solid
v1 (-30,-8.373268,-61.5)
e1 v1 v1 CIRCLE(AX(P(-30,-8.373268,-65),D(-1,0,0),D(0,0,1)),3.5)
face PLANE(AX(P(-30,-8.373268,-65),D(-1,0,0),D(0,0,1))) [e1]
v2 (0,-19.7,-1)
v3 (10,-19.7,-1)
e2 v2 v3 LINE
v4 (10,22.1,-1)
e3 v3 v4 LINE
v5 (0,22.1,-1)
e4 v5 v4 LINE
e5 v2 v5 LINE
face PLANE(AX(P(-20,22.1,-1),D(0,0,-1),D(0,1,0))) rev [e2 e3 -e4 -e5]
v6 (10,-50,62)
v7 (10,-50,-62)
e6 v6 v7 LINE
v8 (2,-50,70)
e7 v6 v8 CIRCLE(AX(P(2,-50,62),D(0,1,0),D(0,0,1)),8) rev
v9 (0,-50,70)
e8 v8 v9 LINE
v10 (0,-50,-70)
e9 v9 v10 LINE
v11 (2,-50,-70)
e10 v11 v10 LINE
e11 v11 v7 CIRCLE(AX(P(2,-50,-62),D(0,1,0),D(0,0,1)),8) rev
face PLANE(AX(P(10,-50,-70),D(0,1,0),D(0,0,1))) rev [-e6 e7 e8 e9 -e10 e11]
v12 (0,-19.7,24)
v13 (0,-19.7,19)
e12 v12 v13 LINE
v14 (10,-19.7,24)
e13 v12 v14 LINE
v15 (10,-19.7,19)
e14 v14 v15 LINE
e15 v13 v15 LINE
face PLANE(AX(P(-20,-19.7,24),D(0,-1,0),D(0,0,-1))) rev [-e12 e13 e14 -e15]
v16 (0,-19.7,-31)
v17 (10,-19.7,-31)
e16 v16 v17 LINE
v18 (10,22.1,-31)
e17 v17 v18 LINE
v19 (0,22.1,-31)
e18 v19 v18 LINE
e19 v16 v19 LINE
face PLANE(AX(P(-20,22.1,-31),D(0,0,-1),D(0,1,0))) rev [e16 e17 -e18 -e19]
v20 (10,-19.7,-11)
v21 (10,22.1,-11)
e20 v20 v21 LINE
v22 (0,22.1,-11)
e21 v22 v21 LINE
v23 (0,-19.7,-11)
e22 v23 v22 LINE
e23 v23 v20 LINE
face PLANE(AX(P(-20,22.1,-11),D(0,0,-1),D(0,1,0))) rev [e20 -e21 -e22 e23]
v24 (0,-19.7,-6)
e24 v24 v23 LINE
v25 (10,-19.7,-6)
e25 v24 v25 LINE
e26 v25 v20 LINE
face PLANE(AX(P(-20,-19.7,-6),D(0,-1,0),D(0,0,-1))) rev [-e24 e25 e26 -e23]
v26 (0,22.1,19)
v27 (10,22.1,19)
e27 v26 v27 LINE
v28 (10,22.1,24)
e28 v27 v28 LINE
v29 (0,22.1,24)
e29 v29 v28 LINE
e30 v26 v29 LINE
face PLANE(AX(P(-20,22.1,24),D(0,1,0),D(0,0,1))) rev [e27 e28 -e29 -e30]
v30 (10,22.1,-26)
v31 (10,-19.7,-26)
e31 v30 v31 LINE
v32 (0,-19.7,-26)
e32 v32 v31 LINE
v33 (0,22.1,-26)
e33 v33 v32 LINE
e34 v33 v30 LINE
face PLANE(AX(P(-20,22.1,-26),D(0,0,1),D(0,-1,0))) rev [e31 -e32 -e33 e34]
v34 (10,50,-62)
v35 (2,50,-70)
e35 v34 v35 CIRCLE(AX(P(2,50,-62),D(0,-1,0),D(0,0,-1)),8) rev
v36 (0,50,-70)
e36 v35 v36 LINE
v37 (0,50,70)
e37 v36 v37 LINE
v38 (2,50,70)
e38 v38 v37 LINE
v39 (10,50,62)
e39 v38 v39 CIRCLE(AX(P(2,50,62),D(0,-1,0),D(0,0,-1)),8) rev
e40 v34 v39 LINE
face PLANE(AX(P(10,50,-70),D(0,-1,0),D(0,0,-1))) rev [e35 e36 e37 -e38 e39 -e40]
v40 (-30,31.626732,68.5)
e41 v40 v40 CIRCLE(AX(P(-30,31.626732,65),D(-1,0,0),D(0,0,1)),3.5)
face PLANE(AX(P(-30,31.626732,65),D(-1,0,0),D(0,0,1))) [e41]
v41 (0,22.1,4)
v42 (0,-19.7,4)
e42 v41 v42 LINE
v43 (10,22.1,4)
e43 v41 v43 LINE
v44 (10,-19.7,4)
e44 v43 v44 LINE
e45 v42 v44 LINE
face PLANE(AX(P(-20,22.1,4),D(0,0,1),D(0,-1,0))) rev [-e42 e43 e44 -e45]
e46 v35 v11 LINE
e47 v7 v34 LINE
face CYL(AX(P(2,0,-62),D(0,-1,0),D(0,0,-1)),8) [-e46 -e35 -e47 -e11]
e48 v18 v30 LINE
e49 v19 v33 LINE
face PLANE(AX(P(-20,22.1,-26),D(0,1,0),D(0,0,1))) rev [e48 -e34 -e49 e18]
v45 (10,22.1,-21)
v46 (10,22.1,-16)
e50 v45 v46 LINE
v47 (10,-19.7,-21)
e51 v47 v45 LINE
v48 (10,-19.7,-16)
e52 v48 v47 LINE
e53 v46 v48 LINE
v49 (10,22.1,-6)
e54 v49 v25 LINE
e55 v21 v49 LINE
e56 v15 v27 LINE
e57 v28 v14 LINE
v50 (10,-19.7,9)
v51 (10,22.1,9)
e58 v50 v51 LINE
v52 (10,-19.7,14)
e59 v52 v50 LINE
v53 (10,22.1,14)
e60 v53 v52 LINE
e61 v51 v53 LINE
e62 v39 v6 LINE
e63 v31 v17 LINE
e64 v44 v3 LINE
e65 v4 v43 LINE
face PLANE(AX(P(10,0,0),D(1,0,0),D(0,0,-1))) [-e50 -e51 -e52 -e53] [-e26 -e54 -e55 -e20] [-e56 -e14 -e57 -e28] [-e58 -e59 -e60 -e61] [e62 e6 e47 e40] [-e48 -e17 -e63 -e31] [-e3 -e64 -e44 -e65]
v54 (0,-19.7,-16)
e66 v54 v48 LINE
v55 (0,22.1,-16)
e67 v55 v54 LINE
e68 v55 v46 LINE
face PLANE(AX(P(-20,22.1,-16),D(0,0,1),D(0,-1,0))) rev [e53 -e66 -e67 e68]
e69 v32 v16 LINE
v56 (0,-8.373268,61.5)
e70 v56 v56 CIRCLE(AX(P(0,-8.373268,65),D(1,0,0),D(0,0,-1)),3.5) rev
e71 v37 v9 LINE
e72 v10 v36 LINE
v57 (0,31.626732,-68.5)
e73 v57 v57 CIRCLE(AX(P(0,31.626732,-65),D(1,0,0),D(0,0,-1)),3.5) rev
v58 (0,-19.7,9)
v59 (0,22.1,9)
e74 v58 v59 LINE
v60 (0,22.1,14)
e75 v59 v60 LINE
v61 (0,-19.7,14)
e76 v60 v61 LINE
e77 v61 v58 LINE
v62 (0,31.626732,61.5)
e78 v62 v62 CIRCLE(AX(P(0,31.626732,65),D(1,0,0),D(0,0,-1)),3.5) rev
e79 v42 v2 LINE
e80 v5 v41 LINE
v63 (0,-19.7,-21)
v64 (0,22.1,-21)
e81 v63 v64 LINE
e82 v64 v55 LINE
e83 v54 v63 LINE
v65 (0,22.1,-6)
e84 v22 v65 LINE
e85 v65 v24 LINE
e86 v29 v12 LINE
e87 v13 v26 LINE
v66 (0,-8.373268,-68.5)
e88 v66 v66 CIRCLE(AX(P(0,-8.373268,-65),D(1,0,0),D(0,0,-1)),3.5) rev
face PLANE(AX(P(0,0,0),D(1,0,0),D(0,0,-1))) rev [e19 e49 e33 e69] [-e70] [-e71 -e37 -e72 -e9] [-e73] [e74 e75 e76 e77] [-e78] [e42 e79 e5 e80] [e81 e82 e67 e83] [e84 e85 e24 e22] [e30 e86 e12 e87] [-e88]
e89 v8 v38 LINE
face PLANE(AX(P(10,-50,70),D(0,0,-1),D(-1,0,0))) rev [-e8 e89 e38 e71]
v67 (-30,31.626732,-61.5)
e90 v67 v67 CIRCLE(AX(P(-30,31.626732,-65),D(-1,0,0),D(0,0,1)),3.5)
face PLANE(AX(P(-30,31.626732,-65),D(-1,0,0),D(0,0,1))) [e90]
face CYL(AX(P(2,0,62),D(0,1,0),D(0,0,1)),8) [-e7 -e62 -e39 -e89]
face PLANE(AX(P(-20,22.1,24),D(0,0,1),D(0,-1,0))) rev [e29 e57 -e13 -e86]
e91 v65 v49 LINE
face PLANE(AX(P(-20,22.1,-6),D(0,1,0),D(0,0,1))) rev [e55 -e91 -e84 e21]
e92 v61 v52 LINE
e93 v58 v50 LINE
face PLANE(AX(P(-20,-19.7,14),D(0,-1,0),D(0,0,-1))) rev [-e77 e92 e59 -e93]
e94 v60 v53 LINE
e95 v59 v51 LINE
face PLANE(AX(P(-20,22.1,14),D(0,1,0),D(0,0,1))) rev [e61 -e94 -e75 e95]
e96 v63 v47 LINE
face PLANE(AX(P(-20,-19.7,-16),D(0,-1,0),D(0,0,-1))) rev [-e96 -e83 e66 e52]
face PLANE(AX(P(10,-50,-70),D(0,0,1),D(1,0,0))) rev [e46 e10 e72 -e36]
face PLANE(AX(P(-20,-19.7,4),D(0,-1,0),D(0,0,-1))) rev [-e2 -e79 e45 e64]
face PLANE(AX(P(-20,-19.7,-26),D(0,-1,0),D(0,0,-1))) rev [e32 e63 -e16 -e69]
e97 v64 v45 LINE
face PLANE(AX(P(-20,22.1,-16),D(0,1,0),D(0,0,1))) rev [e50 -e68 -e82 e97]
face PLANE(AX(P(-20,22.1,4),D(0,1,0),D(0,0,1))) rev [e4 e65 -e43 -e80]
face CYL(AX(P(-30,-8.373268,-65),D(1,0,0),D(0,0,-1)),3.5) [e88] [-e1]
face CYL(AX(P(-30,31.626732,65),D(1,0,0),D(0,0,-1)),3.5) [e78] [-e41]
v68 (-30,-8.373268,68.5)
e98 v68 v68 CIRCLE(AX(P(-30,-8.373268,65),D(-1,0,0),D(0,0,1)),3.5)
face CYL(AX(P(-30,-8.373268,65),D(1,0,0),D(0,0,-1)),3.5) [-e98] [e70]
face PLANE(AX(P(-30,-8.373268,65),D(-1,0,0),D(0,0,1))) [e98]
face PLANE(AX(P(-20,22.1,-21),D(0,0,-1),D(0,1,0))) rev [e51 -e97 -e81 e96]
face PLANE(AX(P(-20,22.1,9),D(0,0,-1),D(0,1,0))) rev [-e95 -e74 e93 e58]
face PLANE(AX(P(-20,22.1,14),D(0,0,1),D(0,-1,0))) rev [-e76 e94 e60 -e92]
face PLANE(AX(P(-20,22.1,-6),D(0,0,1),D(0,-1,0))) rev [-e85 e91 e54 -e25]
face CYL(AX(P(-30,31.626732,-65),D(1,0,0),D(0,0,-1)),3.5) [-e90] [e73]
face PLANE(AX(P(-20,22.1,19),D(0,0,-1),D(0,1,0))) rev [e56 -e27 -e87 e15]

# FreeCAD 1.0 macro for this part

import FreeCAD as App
import Part
import Sketcher
from FreeCAD import Vector


def edges_at(feature, points):
    """Names of the edges that pass closest to the given points."""
    edges = feature.Shape.Edges
    near = lambda p: min(range(len(edges)), key=lambda i: edges[i].distToShape(Part.Vertex(*p))[0])
    return sorted({f"Edge{near(p) + 1}" for p in points})

doc = App.newDocument("Part")
body = doc.addObject("PartDesign::Body", "Body")

# Sketch on YZ plane
sketch1 = doc.addObject("Sketcher::SketchObject", "Sketch")
body.addObject(sketch1)
sketch1.AttachmentSupport = (doc.YZ_Plane, [""])
sketch1.MapMode = "FlatFace"
sketch1.addGeometry([
    Part.LineSegment(Vector(50, 70, 0), Vector(-50, 70, 0)),
    Part.LineSegment(Vector(-50, 70, 0), Vector(-50, -70, 0)),
    Part.LineSegment(Vector(-50, -70, 0), Vector(50, -70, 0)),
    Part.LineSegment(Vector(50, -70, 0), Vector(50, 70, 0)),
], False)
sketch1.addConstraint([
    Sketcher.Constraint("Coincident", 0, 2, 1, 1),
    Sketcher.Constraint("Coincident", 1, 2, 2, 1),
    Sketcher.Constraint("Coincident", 2, 2, 3, 1),
    Sketcher.Constraint("Coincident", 3, 2, 0, 1),
    Sketcher.Constraint("Horizontal", 0),
    Sketcher.Constraint("Vertical", 1),
    Sketcher.Constraint("Horizontal", 2),
    Sketcher.Constraint("Vertical", 3),
    Sketcher.Constraint("Symmetric", 0, 2, 2, 2, -1, 1),
    Sketcher.Constraint("DistanceX", 0, 2, 0, 1, 100.0),
    Sketcher.Constraint("DistanceY", 1, 2, 1, 1, 140.0),
])
pad1 = doc.addObject("PartDesign::Pad", "Pad")
body.addObject(pad1)
pad1.Profile = sketch1
pad1.Length = 10

# Sketch on YZ plane
sketch2 = doc.addObject("Sketcher::SketchObject", "Sketch001")
body.addObject(sketch2)
sketch2.AttachmentSupport = (doc.YZ_Plane, [""])
sketch2.MapMode = "FlatFace"
sketch2.addGeometry([
    Part.Circle(Vector(31.6, -65, 0), Vector(0, 0, 1), 3.5),
    Part.Circle(Vector(-8.4, -65, 0), Vector(0, 0, 1), 3.5),
    Part.Circle(Vector(31.6, 65, 0), Vector(0, 0, 1), 3.5),
    Part.Circle(Vector(-8.4, 65, 0), Vector(0, 0, 1), 3.5),
], False)
sketch2.addConstraint([
    Sketcher.Constraint("Equal", 0, 1),
    Sketcher.Constraint("Equal", 1, 2),
    Sketcher.Constraint("Equal", 2, 3),
    Sketcher.Constraint("Symmetric", 0, 3, 2, 3, -1),
    Sketcher.Constraint("Symmetric", 1, 3, 3, 3, -1),
    Sketcher.Constraint("Horizontal", 0, 3, 1, 3),
    Sketcher.Constraint("Diameter", 0, 7.0),
    Sketcher.Constraint("DistanceY", 0, 3, -1, 1, 65.0),
    Sketcher.Constraint("DistanceX", 1, 3, 0, 3, 40.0),
    Sketcher.Constraint("DistanceX", -1, 1, 0, 3, 31.626732),
])
pad2 = doc.addObject("PartDesign::Pad", "Pad001")
body.addObject(pad2)
pad2.Profile = sketch2
pad2.Length = 30
pad2.Reversed = True
doc.recompute()

fillet = doc.addObject("PartDesign::Fillet", "Fillet")
body.addObject(fillet)
fillet.Base = (pad2, edges_at(pad2, [(10, 0, -70), (10, 0, 70)]))
fillet.Radius = 8

# Sketch on YZ plane
sketch3 = doc.addObject("Sketcher::SketchObject", "Sketch002")
body.addObject(sketch3)
sketch3.AttachmentSupport = (doc.YZ_Plane, [""])
sketch3.MapMode = "FlatFace"
sketch3.AttachmentOffset = App.Placement(Vector(0, 0, 10), App.Rotation())
sketch3.addGeometry([
    Part.LineSegment(Vector(22, -16, 0), Vector(-20, -16, 0)),  # 0
    Part.LineSegment(Vector(-20, -16, 0), Vector(-20, -21, 0)),  # 1
    Part.LineSegment(Vector(-20, -21, 0), Vector(22, -21, 0)),  # 2
    Part.LineSegment(Vector(22, -21, 0), Vector(22, -16, 0)),  # 3
    Part.LineSegment(Vector(22, -26, 0), Vector(-20, -26, 0)),  # 4
    Part.LineSegment(Vector(-20, -26, 0), Vector(-20, -31, 0)),  # 5
    Part.LineSegment(Vector(-20, -31, 0), Vector(22, -31, 0)),  # 6
    Part.LineSegment(Vector(22, -31, 0), Vector(22, -26, 0)),  # 7
    Part.LineSegment(Vector(22, 4, 0), Vector(-20, 4, 0)),  # 8
    Part.LineSegment(Vector(-20, 4, 0), Vector(-20, -1, 0)),  # 9
    Part.LineSegment(Vector(-20, -1, 0), Vector(22, -1, 0)),  # 10
    Part.LineSegment(Vector(22, -1, 0), Vector(22, 4, 0)),  # 11
    Part.LineSegment(Vector(22, -6, 0), Vector(-20, -6, 0)),  # 12
    Part.LineSegment(Vector(-20, -6, 0), Vector(-20, -11, 0)),  # 13
    Part.LineSegment(Vector(-20, -11, 0), Vector(22, -11, 0)),  # 14
    Part.LineSegment(Vector(22, -11, 0), Vector(22, -6, 0)),  # 15
    Part.LineSegment(Vector(22, 24, 0), Vector(-20, 24, 0)),  # 16
    Part.LineSegment(Vector(-20, 24, 0), Vector(-20, 19, 0)),  # 17
    Part.LineSegment(Vector(-20, 19, 0), Vector(22, 19, 0)),  # 18
    Part.LineSegment(Vector(22, 19, 0), Vector(22, 24, 0)),  # 19
    Part.LineSegment(Vector(22, 14, 0), Vector(-20, 14, 0)),  # 20
    Part.LineSegment(Vector(-20, 14, 0), Vector(-20, 9, 0)),  # 21
    Part.LineSegment(Vector(-20, 9, 0), Vector(22, 9, 0)),  # 22
    Part.LineSegment(Vector(22, 9, 0), Vector(22, 14, 0)),  # 23
], False)
sketch3.addConstraint([
    Sketcher.Constraint("Coincident", 0, 2, 1, 1),
    Sketcher.Constraint("Coincident", 1, 2, 2, 1),
    Sketcher.Constraint("Coincident", 2, 2, 3, 1),
    Sketcher.Constraint("Coincident", 3, 2, 0, 1),
    Sketcher.Constraint("Coincident", 4, 2, 5, 1),
    Sketcher.Constraint("Coincident", 5, 2, 6, 1),
    Sketcher.Constraint("Coincident", 6, 2, 7, 1),
    Sketcher.Constraint("Coincident", 7, 2, 4, 1),
    Sketcher.Constraint("Coincident", 8, 2, 9, 1),
    Sketcher.Constraint("Coincident", 9, 2, 10, 1),
    Sketcher.Constraint("Coincident", 10, 2, 11, 1),
    Sketcher.Constraint("Coincident", 11, 2, 8, 1),
    Sketcher.Constraint("Coincident", 12, 2, 13, 1),
    Sketcher.Constraint("Coincident", 13, 2, 14, 1),
    Sketcher.Constraint("Coincident", 14, 2, 15, 1),
    Sketcher.Constraint("Coincident", 15, 2, 12, 1),
    Sketcher.Constraint("Coincident", 16, 2, 17, 1),
    Sketcher.Constraint("Coincident", 17, 2, 18, 1),
    Sketcher.Constraint("Coincident", 18, 2, 19, 1),
    Sketcher.Constraint("Coincident", 19, 2, 16, 1),
    Sketcher.Constraint("Coincident", 20, 2, 21, 1),
    Sketcher.Constraint("Coincident", 21, 2, 22, 1),
    Sketcher.Constraint("Coincident", 22, 2, 23, 1),
    Sketcher.Constraint("Coincident", 23, 2, 20, 1),
    Sketcher.Constraint("Horizontal", 0),
    Sketcher.Constraint("Vertical", 1),
    Sketcher.Constraint("Horizontal", 2),
    Sketcher.Constraint("Vertical", 3),
    Sketcher.Constraint("Horizontal", 4),
    Sketcher.Constraint("Vertical", 5),
    Sketcher.Constraint("Horizontal", 6),
    Sketcher.Constraint("Vertical", 7),
    Sketcher.Constraint("Horizontal", 8),
    Sketcher.Constraint("Vertical", 9),
    Sketcher.Constraint("Horizontal", 10),
    Sketcher.Constraint("Vertical", 11),
    Sketcher.Constraint("Horizontal", 12),
    Sketcher.Constraint("Vertical", 13),
    Sketcher.Constraint("Horizontal", 14),
    Sketcher.Constraint("Vertical", 15),
    Sketcher.Constraint("Horizontal", 16),
    Sketcher.Constraint("Vertical", 17),
    Sketcher.Constraint("Horizontal", 18),
    Sketcher.Constraint("Vertical", 19),
    Sketcher.Constraint("Horizontal", 20),
    Sketcher.Constraint("Vertical", 21),
    Sketcher.Constraint("Horizontal", 22),
    Sketcher.Constraint("Vertical", 23),
    Sketcher.Constraint("Vertical", 1, 2, 4, 2),
    Sketcher.Constraint("Vertical", 3, 2, 6, 2),
    Sketcher.Constraint("Vertical", 5, 2, 8, 2),
    Sketcher.Constraint("Vertical", 7, 2, 10, 2),
    Sketcher.Constraint("Vertical", 9, 2, 12, 2),
    Sketcher.Constraint("Vertical", 11, 2, 14, 2),
    Sketcher.Constraint("Vertical", 13, 2, 16, 2),
    Sketcher.Constraint("Vertical", 15, 2, 18, 2),
    Sketcher.Constraint("Vertical", 17, 2, 20, 2),
    Sketcher.Constraint("Vertical", 19, 2, 22, 2),
    Sketcher.Constraint("Equal", 3, 5),
    Sketcher.Constraint("Equal", 7, 9),
    Sketcher.Constraint("Equal", 11, 13),
    Sketcher.Constraint("Equal", 15, 17),
    Sketcher.Constraint("Equal", 19, 21),
    Sketcher.Constraint("DistanceY", 1, 2, 1, 1, 5.0),
    Sketcher.Constraint("DistanceX", 0, 2, 0, 1, 41.8),
    Sketcher.Constraint("DistanceY", 0, 2, -1, 1, 16.0),
    Sketcher.Constraint("DistanceY", 4, 2, -1, 1, 26.0),
    Sketcher.Constraint("DistanceY", -1, 1, 8, 2, 4.0),
    Sketcher.Constraint("DistanceY", 12, 2, -1, 1, 6.0),
    Sketcher.Constraint("DistanceY", -1, 1, 16, 2, 24.0),
    Sketcher.Constraint("DistanceY", -1, 1, 20, 2, 14.0),
    Sketcher.Constraint("DistanceX", 0, 2, -1, 1, 19.7),
])
pocket1 = doc.addObject("PartDesign::Pocket", "Pocket")
body.addObject(pocket1)
pocket1.Profile = sketch3
pocket1.Length = 30

doc.recompute()
